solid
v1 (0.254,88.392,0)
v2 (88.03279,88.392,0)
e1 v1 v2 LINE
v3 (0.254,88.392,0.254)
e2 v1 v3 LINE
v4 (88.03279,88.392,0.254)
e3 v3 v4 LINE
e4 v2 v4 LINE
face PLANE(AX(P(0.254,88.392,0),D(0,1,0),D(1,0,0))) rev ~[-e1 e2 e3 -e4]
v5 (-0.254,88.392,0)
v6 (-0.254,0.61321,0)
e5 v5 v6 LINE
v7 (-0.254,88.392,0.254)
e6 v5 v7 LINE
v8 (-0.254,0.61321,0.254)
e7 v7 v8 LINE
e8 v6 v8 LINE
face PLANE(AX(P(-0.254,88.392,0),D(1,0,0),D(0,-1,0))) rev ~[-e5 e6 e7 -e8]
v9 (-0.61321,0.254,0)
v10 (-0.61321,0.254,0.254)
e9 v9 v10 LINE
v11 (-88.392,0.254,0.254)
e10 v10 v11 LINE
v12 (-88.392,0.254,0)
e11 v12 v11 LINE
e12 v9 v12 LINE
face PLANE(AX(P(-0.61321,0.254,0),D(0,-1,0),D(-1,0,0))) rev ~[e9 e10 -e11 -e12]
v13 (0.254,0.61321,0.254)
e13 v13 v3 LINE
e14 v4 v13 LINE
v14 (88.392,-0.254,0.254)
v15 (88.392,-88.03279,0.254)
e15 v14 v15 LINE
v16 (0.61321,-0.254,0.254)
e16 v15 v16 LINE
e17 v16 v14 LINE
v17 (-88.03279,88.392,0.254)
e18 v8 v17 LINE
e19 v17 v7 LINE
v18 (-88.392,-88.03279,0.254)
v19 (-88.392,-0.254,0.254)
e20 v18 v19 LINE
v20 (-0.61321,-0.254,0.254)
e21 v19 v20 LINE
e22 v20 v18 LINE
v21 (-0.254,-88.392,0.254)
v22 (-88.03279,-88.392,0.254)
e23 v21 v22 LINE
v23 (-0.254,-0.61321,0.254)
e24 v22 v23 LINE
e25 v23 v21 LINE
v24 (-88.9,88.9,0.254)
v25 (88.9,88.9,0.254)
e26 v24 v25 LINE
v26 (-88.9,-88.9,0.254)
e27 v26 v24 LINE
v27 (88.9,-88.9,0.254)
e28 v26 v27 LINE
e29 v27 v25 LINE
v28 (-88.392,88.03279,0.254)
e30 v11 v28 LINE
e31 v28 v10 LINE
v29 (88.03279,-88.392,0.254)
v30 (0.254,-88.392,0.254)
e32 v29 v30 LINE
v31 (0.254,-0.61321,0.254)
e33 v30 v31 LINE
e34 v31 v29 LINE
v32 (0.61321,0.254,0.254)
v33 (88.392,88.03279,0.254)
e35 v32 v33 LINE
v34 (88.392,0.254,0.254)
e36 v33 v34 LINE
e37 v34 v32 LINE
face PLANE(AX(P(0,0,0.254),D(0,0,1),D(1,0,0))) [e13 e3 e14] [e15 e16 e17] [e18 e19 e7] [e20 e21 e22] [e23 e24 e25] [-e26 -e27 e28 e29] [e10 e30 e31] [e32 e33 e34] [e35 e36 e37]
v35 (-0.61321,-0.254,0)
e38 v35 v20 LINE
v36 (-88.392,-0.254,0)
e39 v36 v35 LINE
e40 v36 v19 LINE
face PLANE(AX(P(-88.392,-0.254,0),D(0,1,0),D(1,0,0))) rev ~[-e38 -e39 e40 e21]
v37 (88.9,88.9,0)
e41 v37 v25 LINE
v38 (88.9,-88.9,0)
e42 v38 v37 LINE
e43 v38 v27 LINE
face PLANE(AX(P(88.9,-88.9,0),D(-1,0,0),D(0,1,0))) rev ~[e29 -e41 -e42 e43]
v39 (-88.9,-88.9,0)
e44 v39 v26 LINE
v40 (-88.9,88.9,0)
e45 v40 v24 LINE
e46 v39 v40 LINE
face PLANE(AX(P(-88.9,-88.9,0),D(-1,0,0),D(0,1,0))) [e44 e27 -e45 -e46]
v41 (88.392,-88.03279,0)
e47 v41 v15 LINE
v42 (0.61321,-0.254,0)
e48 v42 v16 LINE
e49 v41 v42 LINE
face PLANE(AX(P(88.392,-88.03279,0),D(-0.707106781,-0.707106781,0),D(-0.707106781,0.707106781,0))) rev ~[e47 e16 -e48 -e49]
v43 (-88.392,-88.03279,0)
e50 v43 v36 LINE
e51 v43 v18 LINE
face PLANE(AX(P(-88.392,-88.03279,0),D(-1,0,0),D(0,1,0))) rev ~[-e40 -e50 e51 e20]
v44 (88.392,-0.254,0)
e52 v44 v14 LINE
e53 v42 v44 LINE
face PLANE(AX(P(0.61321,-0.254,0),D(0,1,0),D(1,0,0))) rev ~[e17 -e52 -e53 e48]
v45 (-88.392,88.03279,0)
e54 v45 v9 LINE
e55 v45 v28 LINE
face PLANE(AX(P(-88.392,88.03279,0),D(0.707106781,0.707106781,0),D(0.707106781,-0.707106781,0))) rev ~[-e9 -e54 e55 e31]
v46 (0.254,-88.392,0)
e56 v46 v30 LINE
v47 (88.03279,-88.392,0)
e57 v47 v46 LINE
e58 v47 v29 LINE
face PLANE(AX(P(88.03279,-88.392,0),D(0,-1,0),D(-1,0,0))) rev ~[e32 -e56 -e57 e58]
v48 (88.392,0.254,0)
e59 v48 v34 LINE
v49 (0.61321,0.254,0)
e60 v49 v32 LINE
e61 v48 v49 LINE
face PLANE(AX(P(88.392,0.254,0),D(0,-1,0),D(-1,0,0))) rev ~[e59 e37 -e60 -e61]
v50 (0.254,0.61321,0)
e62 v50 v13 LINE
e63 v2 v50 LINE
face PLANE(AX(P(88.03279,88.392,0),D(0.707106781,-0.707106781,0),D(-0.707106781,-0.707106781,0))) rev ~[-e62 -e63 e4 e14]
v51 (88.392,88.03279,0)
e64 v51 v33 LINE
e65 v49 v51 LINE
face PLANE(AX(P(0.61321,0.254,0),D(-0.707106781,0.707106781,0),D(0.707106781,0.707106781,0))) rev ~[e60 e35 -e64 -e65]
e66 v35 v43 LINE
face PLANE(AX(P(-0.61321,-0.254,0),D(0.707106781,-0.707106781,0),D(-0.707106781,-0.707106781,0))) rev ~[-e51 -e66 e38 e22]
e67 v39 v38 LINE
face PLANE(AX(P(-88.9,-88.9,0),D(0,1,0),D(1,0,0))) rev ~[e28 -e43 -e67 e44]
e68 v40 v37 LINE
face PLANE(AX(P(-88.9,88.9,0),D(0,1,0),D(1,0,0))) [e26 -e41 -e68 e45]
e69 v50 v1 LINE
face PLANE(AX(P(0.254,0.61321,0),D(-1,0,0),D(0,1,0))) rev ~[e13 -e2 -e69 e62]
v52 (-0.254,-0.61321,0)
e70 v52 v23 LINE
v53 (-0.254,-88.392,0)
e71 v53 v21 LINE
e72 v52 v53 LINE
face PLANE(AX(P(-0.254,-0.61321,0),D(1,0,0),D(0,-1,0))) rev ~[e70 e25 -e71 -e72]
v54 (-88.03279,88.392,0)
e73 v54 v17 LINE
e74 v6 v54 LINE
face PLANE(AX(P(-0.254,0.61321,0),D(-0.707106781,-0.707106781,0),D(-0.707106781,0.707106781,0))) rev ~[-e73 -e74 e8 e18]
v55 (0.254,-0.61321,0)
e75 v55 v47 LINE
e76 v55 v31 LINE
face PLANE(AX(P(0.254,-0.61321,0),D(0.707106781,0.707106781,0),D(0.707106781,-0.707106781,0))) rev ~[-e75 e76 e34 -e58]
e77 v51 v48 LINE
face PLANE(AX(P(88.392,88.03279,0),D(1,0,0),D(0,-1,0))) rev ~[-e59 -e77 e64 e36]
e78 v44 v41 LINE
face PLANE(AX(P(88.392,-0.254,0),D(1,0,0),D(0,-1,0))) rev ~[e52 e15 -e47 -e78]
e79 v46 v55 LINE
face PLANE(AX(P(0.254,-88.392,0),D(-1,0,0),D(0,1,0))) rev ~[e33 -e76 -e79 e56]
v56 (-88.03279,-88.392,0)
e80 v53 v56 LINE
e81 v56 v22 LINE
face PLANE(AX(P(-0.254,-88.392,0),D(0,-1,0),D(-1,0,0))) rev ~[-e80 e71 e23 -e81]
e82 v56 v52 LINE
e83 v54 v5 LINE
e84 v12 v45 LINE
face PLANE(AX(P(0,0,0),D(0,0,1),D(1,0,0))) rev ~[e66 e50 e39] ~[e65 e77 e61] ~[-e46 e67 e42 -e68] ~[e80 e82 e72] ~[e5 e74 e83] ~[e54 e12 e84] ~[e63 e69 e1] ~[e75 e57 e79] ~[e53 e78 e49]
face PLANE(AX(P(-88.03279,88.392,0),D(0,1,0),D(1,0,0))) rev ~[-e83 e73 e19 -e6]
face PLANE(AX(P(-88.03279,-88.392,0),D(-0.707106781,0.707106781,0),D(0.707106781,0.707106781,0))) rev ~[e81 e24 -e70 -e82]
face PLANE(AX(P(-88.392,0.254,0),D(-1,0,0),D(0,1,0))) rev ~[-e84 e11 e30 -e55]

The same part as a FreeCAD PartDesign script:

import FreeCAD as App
import Part
import Sketcher
Q = App.Units.Quantity

doc = App.newDocument("Part")
params = doc.addObject("Spreadsheet::Sheet", "Params")
for row, (alias, value) in enumerate([
    ("sketch1_width", "7 in"),
    ("pad1_length", "0.01 in"),
], start=1):
    params.set(f"A{row}", alias)
    params.set(f"B{row}", "=" + value)
    params.setAlias(f"B{row}", alias)

body = doc.addObject("PartDesign::Body", "Body")

sketch1 = doc.addObject("Sketcher::SketchObject", "Sketch")
body.addObject(sketch1)
sketch1.AttachmentSupport = (doc.XY_Plane, [""])
sketch1.MapMode = "FlatFace"
sketch1.addGeometry([
    Part.LineSegment(App.Vector(-88.9, 88.9, 0), App.Vector(-88.9, -88.9, 0)),
    Part.LineSegment(App.Vector(-88.9, -88.9, 0), App.Vector(88.9, -88.9, 0)),
    Part.LineSegment(App.Vector(88.9, -88.9, 0), App.Vector(88.9, 88.9, 0)),
    Part.LineSegment(App.Vector(88.9, 88.9, 0), App.Vector(-88.9, 88.9, 0)),
    Part.LineSegment(App.Vector(-0.254, -0.61321, 0), App.Vector(-0.254, -88.392, 0)),
    Part.LineSegment(App.Vector(-0.254, -88.392, 0), App.Vector(-88.03279, -88.392, 0)),
    Part.LineSegment(App.Vector(-88.03279, -88.392, 0), App.Vector(-0.254, -0.61321, 0)),
    Part.LineSegment(App.Vector(-88.392, -0.254, 0), App.Vector(-0.61321, -0.254, 0)),
    Part.LineSegment(App.Vector(-0.61321, -0.254, 0), App.Vector(-88.392, -88.03279, 0)),
    Part.LineSegment(App.Vector(-88.392, -88.03279, 0), App.Vector(-88.392, -0.254, 0)),
    Part.LineSegment(App.Vector(0.254, -0.61321, 0), App.Vector(88.03279, -88.392, 0)),
    Part.LineSegment(App.Vector(88.03279, -88.392, 0), App.Vector(0.254, -88.392, 0)),
    Part.LineSegment(App.Vector(0.254, -88.392, 0), App.Vector(0.254, -0.61321, 0)),
    Part.LineSegment(App.Vector(0.61321, -0.254, 0), App.Vector(88.392, -0.254, 0)),
    Part.LineSegment(App.Vector(88.392, -0.254, 0), App.Vector(88.392, -88.03279, 0)),
    Part.LineSegment(App.Vector(88.392, -88.03279, 0), App.Vector(0.61321, -0.254, 0)),
    Part.LineSegment(App.Vector(-0.61321, 0.254, 0), App.Vector(-88.392, 0.254, 0)),
    Part.LineSegment(App.Vector(-88.392, 0.254, 0), App.Vector(-88.392, 88.03279, 0)),
    Part.LineSegment(App.Vector(-88.392, 88.03279, 0), App.Vector(-0.61321, 0.254, 0)),
    Part.LineSegment(App.Vector(-0.254, 88.392, 0), App.Vector(-0.254, 0.61321, 0)),
    Part.LineSegment(App.Vector(-0.254, 0.61321, 0), App.Vector(-88.03279, 88.392, 0)),
    Part.LineSegment(App.Vector(-88.03279, 88.392, 0), App.Vector(-0.254, 88.392, 0)),
    Part.LineSegment(App.Vector(88.392, 0.254, 0), App.Vector(0.61321, 0.254, 0)),
    Part.LineSegment(App.Vector(0.61321, 0.254, 0), App.Vector(88.392, 88.03279, 0)),
    Part.LineSegment(App.Vector(88.392, 88.03279, 0), App.Vector(88.392, 0.254, 0)),
    Part.LineSegment(App.Vector(88.03279, 88.392, 0), App.Vector(0.254, 0.61321, 0)),
    Part.LineSegment(App.Vector(0.254, 0.61321, 0), App.Vector(0.254, 88.392, 0)),
    Part.LineSegment(App.Vector(0.254, 88.392, 0), App.Vector(88.03279, 88.392, 0)),
], False)
sketch1.addConstraint([
    Sketcher.Constraint("Coincident", 0, 2, 1, 1),
    Sketcher.Constraint("Coincident", 1, 2, 2, 1),
    Sketcher.Constraint("Coincident", 2, 2, 3, 1),
    Sketcher.Constraint("Coincident", 3, 2, 0, 1),
    Sketcher.Constraint("Coincident", 4, 2, 5, 1),
    Sketcher.Constraint("Coincident", 5, 2, 6, 1),
    Sketcher.Constraint("Coincident", 6, 2, 4, 1),
    Sketcher.Constraint("Coincident", 7, 2, 8, 1),
    Sketcher.Constraint("Coincident", 8, 2, 9, 1),
    Sketcher.Constraint("Coincident", 9, 2, 7, 1),
    Sketcher.Constraint("Coincident", 10, 2, 11, 1),
    Sketcher.Constraint("Coincident", 11, 2, 12, 1),
    Sketcher.Constraint("Coincident", 12, 2, 10, 1),
    Sketcher.Constraint("Coincident", 13, 2, 14, 1),
    Sketcher.Constraint("Coincident", 14, 2, 15, 1),
    Sketcher.Constraint("Coincident", 15, 2, 13, 1),
    Sketcher.Constraint("Coincident", 16, 2, 17, 1),
    Sketcher.Constraint("Coincident", 17, 2, 18, 1),
    Sketcher.Constraint("Coincident", 18, 2, 16, 1),
    Sketcher.Constraint("Coincident", 19, 2, 20, 1),
    Sketcher.Constraint("Coincident", 20, 2, 21, 1),
    Sketcher.Constraint("Coincident", 21, 2, 19, 1),
    Sketcher.Constraint("Coincident", 22, 2, 23, 1),
    Sketcher.Constraint("Coincident", 23, 2, 24, 1),
    Sketcher.Constraint("Coincident", 24, 2, 22, 1),
    Sketcher.Constraint("Coincident", 25, 2, 26, 1),
    Sketcher.Constraint("Coincident", 26, 2, 27, 1),
    Sketcher.Constraint("Coincident", 27, 2, 25, 1),
    Sketcher.Constraint("Vertical", 0),
    Sketcher.Constraint("Horizontal", 1),
    Sketcher.Constraint("Vertical", 2),
    Sketcher.Constraint("Horizontal", 3),
    Sketcher.Constraint("Vertical", 4),
    Sketcher.Constraint("Horizontal", 5),
    Sketcher.Constraint("Horizontal", 7),
    Sketcher.Constraint("Vertical", 9),
    Sketcher.Constraint("Horizontal", 11),
    Sketcher.Constraint("Vertical", 12),
    Sketcher.Constraint("Horizontal", 13),
    Sketcher.Constraint("Vertical", 14),
    Sketcher.Constraint("Horizontal", 16),
    Sketcher.Constraint("Vertical", 17),
    Sketcher.Constraint("Vertical", 19),
    Sketcher.Constraint("Horizontal", 21),
    Sketcher.Constraint("Horizontal", 22),
    Sketcher.Constraint("Vertical", 24),
    Sketcher.Constraint("Vertical", 26),
    Sketcher.Constraint("Horizontal", 27),
    Sketcher.Constraint("Symmetric", 0, 2, 2, 2, -1, 1),
    Sketcher.Constraint("Symmetric", 13, 2, 16, 2, -1, 1),
    Sketcher.Constraint("Symmetric", 12, 2, 19, 2, -1, 1),
    Sketcher.Constraint("Symmetric", 10, 2, 20, 2, -1, 1),
    Sketcher.Constraint("Symmetric", 7, 2, 22, 2, -1, 1),
    Sketcher.Constraint("Symmetric", 8, 2, 23, 2, -1, 1),
    Sketcher.Constraint("Symmetric", 6, 2, 25, 2, -1, 1),
    Sketcher.Constraint("Symmetric", 5, 2, 27, 2, -1, 1),
    Sketcher.Constraint("Symmetric", 5, 2, 10, 2, -2),
    Sketcher.Constraint("Symmetric", 6, 2, 12, 2, -2),
    Sketcher.Constraint("Symmetric", 9, 2, 13, 2, -2),
    Sketcher.Constraint("Parallel", 6, 8),
    Sketcher.Constraint("Perpendicular", 8, 10),
    Sketcher.Constraint("Parallel", 10, 15),
    Sketcher.Constraint("Parallel", 15, 18),
    Sketcher.Constraint("Horizontal", 8, 2, 14, 2),
    Sketcher.Constraint("Horizontal", 17, 2, 23, 2),
    Sketcher.Constraint("Equal", 5, 7),
    Sketcher.Constraint("Equal", 3, 0),
    Sketcher.Constraint("DistanceX", 1, 1, 1, 2, Q("7 in")),
    Sketcher.Constraint("DistanceX", 4, 2, -1, 1, Q("0.01 in")),
    Sketcher.Constraint("DistanceY", 4, 2, -1, 1, Q("3.48 in")),
    Sketcher.Constraint("DistanceY", 7, 2, -1, 1, Q("0.01 in")),
    Sketcher.Constraint("DistanceX", 8, 2, -1, 1, Q("3.48 in")),
    Sketcher.Constraint("DistanceX", 5, 2, 5, 1, 87.77879),
])
sketch1.setExpression("Constraints[67]", "Params.sketch1_width")
pad1 = doc.addObject("PartDesign::Pad", "Pad")
body.addObject(pad1)
pad1.Profile = sketch1
pad1.setExpression("Length", "Params.pad1_length")

doc.recompute()
